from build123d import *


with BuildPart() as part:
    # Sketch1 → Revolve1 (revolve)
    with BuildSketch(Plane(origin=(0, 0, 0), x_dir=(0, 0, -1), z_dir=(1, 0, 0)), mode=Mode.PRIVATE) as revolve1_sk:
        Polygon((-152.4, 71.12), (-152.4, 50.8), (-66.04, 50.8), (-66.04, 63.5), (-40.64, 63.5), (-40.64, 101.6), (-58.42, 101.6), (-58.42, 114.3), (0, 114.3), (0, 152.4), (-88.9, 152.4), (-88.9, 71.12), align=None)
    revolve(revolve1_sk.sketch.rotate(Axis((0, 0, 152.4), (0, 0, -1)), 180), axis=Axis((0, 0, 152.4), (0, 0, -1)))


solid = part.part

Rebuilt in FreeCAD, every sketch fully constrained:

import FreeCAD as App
import Part
import Sketcher

V = App.Vector
Q = App.Units.Quantity


def add_polygon(sketch, points):
    """Adds a closed chain of lines whose ends are joined by coincident constraints."""
    first, n = sketch.GeometryCount, len(points)
    for a, b in zip(points, points[1:] + points[:1]):
        sketch.addGeometry(Part.LineSegment(App.Vector(*a, 0), App.Vector(*b, 0)), False)
    for i in range(n):
        sketch.addConstraint(Sketcher.Constraint("Coincident", first + i, 2, first + (i + 1) % n, 1))

doc = App.newDocument("Part")
body = doc.addObject("PartDesign::Body", "Body")

sketch1 = doc.addObject("Sketcher::SketchObject", "Sketch")
body.addObject(sketch1)
sketch1.AttachmentSupport = (doc.YZ_Plane, [""])
sketch1.MapMode = "FlatFace"
add_polygon(sketch1, [(71, 152), (51, 152), (51, 66), (64, 66), (64, 41), (102, 41), (102, 58), (114, 58), (114, 0), (152, 0), (152, 89), (71, 89)])
sketch1.addConstraint([
    Sketcher.Constraint("Horizontal", 0),
    Sketcher.Constraint("Vertical", 1),
    Sketcher.Constraint("Horizontal", 2),
    Sketcher.Constraint("Vertical", 3),
    Sketcher.Constraint("Horizontal", 4),
    Sketcher.Constraint("Vertical", 5),
    Sketcher.Constraint("Horizontal", 6),
    Sketcher.Constraint("Vertical", 7),
    Sketcher.Constraint("Horizontal", 8),
    Sketcher.Constraint("Vertical", 9),
    Sketcher.Constraint("Horizontal", 10),
    Sketcher.Constraint("Vertical", 11),
    Sketcher.Constraint("PointOnObject", 7, 2, -1),
    Sketcher.Constraint("Equal", 2, 6),
    Sketcher.Constraint("Equal", 4, 8),
    Sketcher.Constraint("DistanceY", 3, 2, 3, 1, Q("1 in")),
    Sketcher.Constraint("DistanceX", 0, 2, 0, 1, Q("0.8 in")),
    Sketcher.Constraint("DistanceX", 2, 1, 2, 2, Q("0.5 in")),
    Sketcher.Constraint("DistanceX", 4, 1, 4, 2, Q("1.5 in")),
    Sketcher.Constraint("DistanceY", 1, 2, 1, 1, Q("3.4 in")),
    Sketcher.Constraint("DistanceY", 5, 1, 5, 2, Q("0.7 in")),
    Sketcher.Constraint("DistanceY", 7, 2, 7, 1, Q("2.3 in")),
    Sketcher.Constraint("DistanceY", 9, 1, 9, 2, Q("3.5 in")),
    Sketcher.Constraint("DistanceX", -1, 1, 0, 2, Q("2 in")),
])
revolution = doc.addObject("PartDesign::Revolution", "Revolution")
body.addObject(revolution)
revolution.Profile = sketch1
revolution.ReferenceAxis = (sketch1, ["V_Axis"])
revolution.Angle = 360

doc.recompute()
